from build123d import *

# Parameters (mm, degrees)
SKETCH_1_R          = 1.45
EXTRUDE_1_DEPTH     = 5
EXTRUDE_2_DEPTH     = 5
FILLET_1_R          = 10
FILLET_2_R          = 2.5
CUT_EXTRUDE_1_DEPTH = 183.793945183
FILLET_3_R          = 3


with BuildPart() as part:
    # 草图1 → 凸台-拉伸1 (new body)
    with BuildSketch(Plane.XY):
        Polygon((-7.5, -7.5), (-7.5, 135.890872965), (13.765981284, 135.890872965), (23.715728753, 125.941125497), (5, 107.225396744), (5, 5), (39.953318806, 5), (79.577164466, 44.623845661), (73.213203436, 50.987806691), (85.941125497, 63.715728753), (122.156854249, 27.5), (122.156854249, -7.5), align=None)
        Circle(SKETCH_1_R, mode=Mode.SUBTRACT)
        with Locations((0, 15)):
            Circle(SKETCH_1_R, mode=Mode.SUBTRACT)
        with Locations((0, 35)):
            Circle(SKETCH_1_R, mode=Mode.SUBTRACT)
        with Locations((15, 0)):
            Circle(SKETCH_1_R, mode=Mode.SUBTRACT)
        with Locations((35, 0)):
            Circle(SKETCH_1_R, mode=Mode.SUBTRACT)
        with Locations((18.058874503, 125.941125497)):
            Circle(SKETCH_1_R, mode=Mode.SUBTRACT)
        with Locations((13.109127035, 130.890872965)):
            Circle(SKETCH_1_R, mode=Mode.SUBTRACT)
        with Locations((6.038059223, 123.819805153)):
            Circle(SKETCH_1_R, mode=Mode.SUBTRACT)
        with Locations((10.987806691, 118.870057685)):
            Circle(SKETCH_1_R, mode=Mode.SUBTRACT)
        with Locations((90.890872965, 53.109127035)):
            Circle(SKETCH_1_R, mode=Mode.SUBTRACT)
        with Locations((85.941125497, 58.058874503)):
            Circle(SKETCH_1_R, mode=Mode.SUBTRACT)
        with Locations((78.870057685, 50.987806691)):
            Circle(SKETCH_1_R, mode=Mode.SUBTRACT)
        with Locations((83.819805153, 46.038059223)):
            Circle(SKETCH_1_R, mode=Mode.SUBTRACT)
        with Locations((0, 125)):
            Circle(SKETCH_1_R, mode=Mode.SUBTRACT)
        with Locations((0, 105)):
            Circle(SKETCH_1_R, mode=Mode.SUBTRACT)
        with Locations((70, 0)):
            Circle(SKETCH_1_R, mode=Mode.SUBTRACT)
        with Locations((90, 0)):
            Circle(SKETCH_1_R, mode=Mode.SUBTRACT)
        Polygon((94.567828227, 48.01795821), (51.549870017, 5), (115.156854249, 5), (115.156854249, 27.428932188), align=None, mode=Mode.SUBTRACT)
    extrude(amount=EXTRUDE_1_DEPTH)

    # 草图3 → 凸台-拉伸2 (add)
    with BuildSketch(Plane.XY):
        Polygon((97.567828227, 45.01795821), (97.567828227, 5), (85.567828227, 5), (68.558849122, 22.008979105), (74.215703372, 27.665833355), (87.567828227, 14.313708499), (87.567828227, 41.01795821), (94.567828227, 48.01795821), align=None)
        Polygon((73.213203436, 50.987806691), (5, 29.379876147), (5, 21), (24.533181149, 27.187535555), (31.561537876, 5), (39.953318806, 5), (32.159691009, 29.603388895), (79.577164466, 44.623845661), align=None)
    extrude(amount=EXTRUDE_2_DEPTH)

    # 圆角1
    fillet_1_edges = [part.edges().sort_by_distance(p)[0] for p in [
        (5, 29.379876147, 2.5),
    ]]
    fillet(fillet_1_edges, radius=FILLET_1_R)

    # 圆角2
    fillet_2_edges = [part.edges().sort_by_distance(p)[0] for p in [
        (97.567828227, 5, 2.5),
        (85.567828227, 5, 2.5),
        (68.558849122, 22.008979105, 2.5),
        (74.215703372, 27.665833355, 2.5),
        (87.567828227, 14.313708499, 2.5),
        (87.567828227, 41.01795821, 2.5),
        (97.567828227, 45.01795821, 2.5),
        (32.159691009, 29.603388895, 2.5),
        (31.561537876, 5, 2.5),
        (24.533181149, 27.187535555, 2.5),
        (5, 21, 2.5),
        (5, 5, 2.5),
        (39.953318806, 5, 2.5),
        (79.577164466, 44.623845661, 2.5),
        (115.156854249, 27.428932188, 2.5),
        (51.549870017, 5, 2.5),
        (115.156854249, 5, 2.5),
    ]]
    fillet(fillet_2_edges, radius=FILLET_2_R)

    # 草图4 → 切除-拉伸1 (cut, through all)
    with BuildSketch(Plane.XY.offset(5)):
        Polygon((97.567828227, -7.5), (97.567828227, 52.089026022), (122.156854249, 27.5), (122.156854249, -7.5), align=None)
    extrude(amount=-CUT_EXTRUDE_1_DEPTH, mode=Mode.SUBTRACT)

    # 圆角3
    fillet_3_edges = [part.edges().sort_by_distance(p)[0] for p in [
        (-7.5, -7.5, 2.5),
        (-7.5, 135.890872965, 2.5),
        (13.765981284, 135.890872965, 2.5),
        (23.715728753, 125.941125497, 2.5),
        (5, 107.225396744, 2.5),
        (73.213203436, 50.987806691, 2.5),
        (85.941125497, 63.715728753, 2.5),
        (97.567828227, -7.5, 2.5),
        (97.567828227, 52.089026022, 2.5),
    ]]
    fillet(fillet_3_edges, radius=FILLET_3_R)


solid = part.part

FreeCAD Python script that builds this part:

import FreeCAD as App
import Part
import Sketcher
Q = App.Units.Quantity


def edges_at(feature, points):
    """Names of the edges that pass closest to the given points."""
    edges = feature.Shape.Edges
    near = lambda p: min(range(len(edges)), key=lambda i: edges[i].distToShape(Part.Vertex(*p))[0])
    return sorted({f"Edge{near(p) + 1}" for p in points})

doc = App.newDocument("Part")
params = doc.addObject("Spreadsheet::Sheet", "Params")
for row, (alias, value) in enumerate([
    ("sketch1_diameter", "2.9 mm"),
    ("sketch1_height", "35 mm"),
    ("sketch1_length", "18 mm"),
    ("sketch1_length2", "9 mm"),
    ("pad1_length", "5 mm"),
    ("sketch2_width", "12 mm"),
    ("sketch2_length", "8 mm"),
    ("sketch2_length2", "9 mm"),
    ("pad2_length", "5 mm"),
    ("fillet_radius", "10 mm"),
    ("fillet2_radius", "2.5 mm"),
    ("sketch3_height", "35 mm"),
    ("fillet3_radius", "3 mm"),
], start=1):
    params.set(f"A{row}", alias)
    params.set(f"B{row}", "=" + value)
    params.setAlias(f"B{row}", alias)

body = doc.addObject("PartDesign::Body", "Body")

# Sketch on XY plane
sketch1 = doc.addObject("Sketcher::SketchObject", "Sketch")
body.addObject(sketch1)
sketch1.AttachmentSupport = (doc.XY_Plane, [""])
sketch1.MapMode = "FlatFace"
sketch1.addGeometry([
    Part.LineSegment(App.Vector(-7.5, 135.890873, 0), App.Vector(-7.5, -7.5, 0)),  # 0
    Part.LineSegment(App.Vector(-7.5, -7.5, 0), App.Vector(122.156854, -7.5, 0)),  # 1
    Part.LineSegment(App.Vector(122.156854, -7.5, 0), App.Vector(122.156854, 27.5, 0)),  # 2
    Part.LineSegment(App.Vector(122.156854, 27.5, 0), App.Vector(85.941125, 63.715729, 0)),  # 3
    Part.LineSegment(App.Vector(85.941125, 63.715729, 0), App.Vector(73.213203, 50.987807, 0)),  # 4
    Part.LineSegment(App.Vector(73.213203, 50.987807, 0), App.Vector(79.577164, 44.623846, 0)),  # 5
    Part.LineSegment(App.Vector(79.577164, 44.623846, 0), App.Vector(39.953319, 5, 0)),  # 6
    Part.LineSegment(App.Vector(39.953319, 5, 0), App.Vector(5, 5, 0)),  # 7
    Part.LineSegment(App.Vector(5, 5, 0), App.Vector(5, 107.225397, 0)),  # 8
    Part.LineSegment(App.Vector(5, 107.225397, 0), App.Vector(23.715729, 125.941125, 0)),  # 9
    Part.LineSegment(App.Vector(23.715729, 125.941125, 0), App.Vector(13.765981, 135.890873, 0)),  # 10
    Part.LineSegment(App.Vector(13.765981, 135.890873, 0), App.Vector(-7.5, 135.890873, 0)),  # 11
    Part.Circle(App.Vector(90, 0, 0), App.Vector(0, 0, 1), 1.45),  # 12
    Part.Circle(App.Vector(70, 0, 0), App.Vector(0, 0, 1), 1.45),  # 13
    Part.LineSegment(App.Vector(94.567828, 48.017958, 0), App.Vector(115.156854, 27.428932, 0)),  # 14
    Part.LineSegment(App.Vector(115.156854, 27.428932, 0), App.Vector(115.156854, 5, 0)),  # 15
    Part.LineSegment(App.Vector(115.156854, 5, 0), App.Vector(51.54987, 5, 0)),  # 16
    Part.LineSegment(App.Vector(51.54987, 5, 0), App.Vector(94.567828, 48.017958, 0)),  # 17
    Part.Circle(App.Vector(90.890873, 53.109127, 0), App.Vector(0, 0, 1), 1.45),  # 18
    Part.Circle(App.Vector(83.819805, 46.038059, 0), App.Vector(0, 0, 1), 1.45),  # 19
    Part.Circle(App.Vector(78.870058, 50.987807, 0), App.Vector(0, 0, 1), 1.45),  # 20
    Part.Circle(App.Vector(85.941125, 58.058875, 0), App.Vector(0, 0, 1), 1.45),  # 21
    Part.Circle(App.Vector(35, 0, 0), App.Vector(0, 0, 1), 1.45),  # 22
    Part.Circle(App.Vector(15, 0, 0), App.Vector(0, 0, 1), 1.45),  # 23
    Part.Circle(App.Vector(0, 0, 0), App.Vector(0, 0, 1), 1.45),  # 24
    Part.Circle(App.Vector(0, 15, 0), App.Vector(0, 0, 1), 1.45),  # 25
    Part.Circle(App.Vector(0, 35, 0), App.Vector(0, 0, 1), 1.45),  # 26
    Part.Circle(App.Vector(0, 105, 0), App.Vector(0, 0, 1), 1.45),  # 27
    Part.Circle(App.Vector(18.058875, 125.941125, 0), App.Vector(0, 0, 1), 1.45),  # 28
    Part.Circle(App.Vector(10.987807, 118.870058, 0), App.Vector(0, 0, 1), 1.45),  # 29
    Part.Circle(App.Vector(6.038059, 123.819805, 0), App.Vector(0, 0, 1), 1.45),  # 30
    Part.Circle(App.Vector(13.109127, 130.890873, 0), App.Vector(0, 0, 1), 1.45),  # 31
    Part.Circle(App.Vector(0, 125, 0), App.Vector(0, 0, 1), 1.45),  # 32
], False)
sketch1.addConstraint([
    Sketcher.Constraint("Coincident", 0, 2, 1, 1),
    Sketcher.Constraint("Coincident", 1, 2, 2, 1),
    Sketcher.Constraint("Coincident", 2, 2, 3, 1),
    Sketcher.Constraint("Coincident", 3, 2, 4, 1),
    Sketcher.Constraint("Coincident", 4, 2, 5, 1),
    Sketcher.Constraint("Coincident", 5, 2, 6, 1),
    Sketcher.Constraint("Coincident", 6, 2, 7, 1),
    Sketcher.Constraint("Coincident", 7, 2, 8, 1),
    Sketcher.Constraint("Coincident", 8, 2, 9, 1),
    Sketcher.Constraint("Coincident", 9, 2, 10, 1),
    Sketcher.Constraint("Coincident", 10, 2, 11, 1),
    Sketcher.Constraint("Coincident", 11, 2, 0, 1),
    Sketcher.Constraint("Coincident", 14, 2, 15, 1),
    Sketcher.Constraint("Coincident", 15, 2, 16, 1),
    Sketcher.Constraint("Coincident", 16, 2, 17, 1),
    Sketcher.Constraint("Coincident", 17, 2, 14, 1),
    Sketcher.Constraint("Vertical", 0),
    Sketcher.Constraint("Horizontal", 1),
    Sketcher.Constraint("Vertical", 2),
    Sketcher.Constraint("Horizontal", 7),
    Sketcher.Constraint("Vertical", 8),
    Sketcher.Constraint("Horizontal", 11),
    Sketcher.Constraint("Vertical", 15),
    Sketcher.Constraint("Horizontal", 16),
    Sketcher.Constraint("Coincident", 24, 3, -1, 1),
    Sketcher.Constraint("Equal", 12, 13),
    Sketcher.Constraint("Equal", 13, 18),
    Sketcher.Constraint("Equal", 18, 19),
    Sketcher.Constraint("Equal", 19, 20),
    Sketcher.Constraint("Equal", 20, 21),
    Sketcher.Constraint("Equal", 21, 22),
    Sketcher.Constraint("Equal", 22, 23),
    Sketcher.Constraint("Equal", 23, 24),
    Sketcher.Constraint("Equal", 24, 25),
    Sketcher.Constraint("Equal", 25, 26),
    Sketcher.Constraint("Equal", 26, 27),
    Sketcher.Constraint("Equal", 27, 28),
    Sketcher.Constraint("Equal", 28, 29),
    Sketcher.Constraint("Equal", 29, 30),
    Sketcher.Constraint("Equal", 30, 31),
    Sketcher.Constraint("Equal", 31, 32),
    Sketcher.Constraint("PointOnObject", 12, 3, -1),
    Sketcher.Constraint("PointOnObject", 13, 3, -1),
    Sketcher.Constraint("PointOnObject", 22, 3, -1),
    Sketcher.Constraint("PointOnObject", 23, 3, -1),
    Sketcher.Constraint("PointOnObject", 25, 3, -2),
    Sketcher.Constraint("PointOnObject", 26, 3, -2),
    Sketcher.Constraint("PointOnObject", 27, 3, -2),
    Sketcher.Constraint("PointOnObject", 32, 3, -2),
    Sketcher.Constraint("Perpendicular", 3, 4),
    Sketcher.Constraint("Perpendicular", 4, 5),
    Sketcher.Constraint("Perpendicular", 5, 6),
    Sketcher.Constraint("Parallel", 6, 9),
    Sketcher.Constraint("Perpendicular", 9, 10),
    Sketcher.Constraint("Parallel", 10, 14),
    Sketcher.Constraint("Perpendicular", 14, 17),
    Sketcher.Constraint("Horizontal", 20, 3, 4, 2),
    Sketcher.Constraint("Horizontal", 28, 3, 9, 2),
    Sketcher.Constraint("Horizontal", 7, 2, 15, 2),
    Sketcher.Constraint("Vertical", 21, 3, 3, 2),
    Sketcher.Constraint("Diameter", 12, 2.9),
    Sketcher.Constraint("DistanceY", 2, 1, 2, 2, 35.0),
    Sketcher.Constraint("Angle", 3, Q("135 deg")),
    Sketcher.Constraint("Distance", 4, 18.0),
    Sketcher.Constraint("Distance", 5, 9.0),
    Sketcher.Constraint("DistanceX", -1, 1, 12, 3, 90.0),
    Sketcher.Constraint("DistanceX", -1, 1, 13, 3, 70.0),
    Sketcher.Constraint("DistanceX", -1, 1, 22, 3, 35.0),
    Sketcher.Constraint("DistanceX", -1, 1, 23, 3, 15.0),
    Sketcher.Constraint("DistanceY", -1, 1, 25, 3, 15.0),
    Sketcher.Constraint("DistanceY", -1, 1, 26, 3, 35.0),
    Sketcher.Constraint("DistanceY", -1, 1, 27, 3, 105.0),
    Sketcher.Constraint("DistanceY", -1, 1, 32, 3, 125.0),
    Sketcher.Constraint("DistanceY", -1, 1, 6, 2, 5.0),
    Sketcher.Constraint("DistanceX", -1, 1, 7, 2, 5.0),
    Sketcher.Constraint("DistanceY", 31, 3, 10, 2, 5.0),
    Sketcher.Constraint("DistanceX", 14, 2, 2, 2, 7.0),
    Sketcher.Constraint("DistanceX", 0, 2, -1, 1, 7.5),
    Sketcher.Constraint("DistanceY", 0, 2, -1, 1, 7.5),
    Sketcher.Constraint("DistanceX", 28, 3, 18, 3, 72.831998),
    Sketcher.Constraint("DistanceY", 18, 3, 28, 3, 72.831998),
    Sketcher.Constraint("DistanceX", 30, 3, 20, 3, 72.831998),
    Sketcher.Constraint("DistanceY", 20, 3, 30, 3, 72.831998),
    Sketcher.Constraint("DistanceX", 7, 2, 7, 1, 34.953319),
    Sketcher.Constraint("DistanceX", 11, 2, 11, 1, 21.265981),
    Sketcher.Constraint("DistanceY", 18, 3, 3, 2, 10.606602),
    Sketcher.Constraint("DistanceX", 4, 2, 19, 3, 10.606602),
    Sketcher.Constraint("DistanceX", 31, 3, 9, 2, 10.606602),
    Sketcher.Constraint("DistanceY", 19, 3, 17, 2, 1.979899),
    Sketcher.Constraint("Distance", 6, 56.03658),
    Sketcher.Constraint("Distance", 14, 29.11728),
    Sketcher.Constraint("Distance", 17, 60.83658),
    Sketcher.Constraint("DistanceY", 0, 2, 0, 1, 143.390873),
    Sketcher.Constraint("DistanceX", -1, 1, 30, 3, 6.038059),
    Sketcher.Constraint("DistanceX", 28, 3, 21, 3, 67.882251),
    Sketcher.Constraint("DistanceY", 21, 3, 28, 3, 67.882251),
    Sketcher.Constraint("DistanceX", 29, 3, 20, 3, 67.882251),
    Sketcher.Constraint("DistanceY", 20, 3, 29, 3, 67.882251),
])
sketch1.setExpression("Constraints[60]", "Params.sketch1_diameter")
sketch1.setExpression("Constraints[61]", "Params.sketch1_height")
sketch1.setExpression("Constraints[63]", "Params.sketch1_length")
sketch1.setExpression("Constraints[64]", "Params.sketch1_length2")
pad1 = doc.addObject("PartDesign::Pad", "Pad")
body.addObject(pad1)
pad1.Profile = sketch1
pad1.setExpression("Length", "Params.pad1_length")

# Sketch on XY plane
sketch2 = doc.addObject("Sketcher::SketchObject", "Sketch001")
body.addObject(sketch2)
sketch2.AttachmentSupport = (doc.XY_Plane, [""])
sketch2.MapMode = "FlatFace"
sketch2.addGeometry([
    Part.LineSegment(App.Vector(97.567828, 5, 0), App.Vector(97.567828, 45.017958, 0)),  # 0
    Part.LineSegment(App.Vector(97.567828, 45.017958, 0), App.Vector(94.567828, 48.017958, 0)),  # 1
    Part.LineSegment(App.Vector(94.567828, 48.017958, 0), App.Vector(87.567828, 41.017958, 0)),  # 2
    Part.LineSegment(App.Vector(87.567828, 41.017958, 0), App.Vector(87.567828, 14.313708, 0)),  # 3
    Part.LineSegment(App.Vector(87.567828, 14.313708, 0), App.Vector(74.215703, 27.665833, 0)),  # 4
    Part.LineSegment(App.Vector(74.215703, 27.665833, 0), App.Vector(68.558849, 22.008979, 0)),  # 5
    Part.LineSegment(App.Vector(68.558849, 22.008979, 0), App.Vector(85.567828, 5, 0)),  # 6
    Part.LineSegment(App.Vector(85.567828, 5, 0), App.Vector(97.567828, 5, 0)),  # 7
    Part.LineSegment(App.Vector(73.213203, 50.987807, 0), App.Vector(5, 29.379876, 0)),  # 8
    Part.LineSegment(App.Vector(5, 29.379876, 0), App.Vector(5, 21, 0)),  # 9
    Part.LineSegment(App.Vector(5, 21, 0), App.Vector(24.533181, 27.187536, 0)),  # 10
    Part.LineSegment(App.Vector(24.533181, 27.187536, 0), App.Vector(31.561538, 5, 0)),  # 11
    Part.LineSegment(App.Vector(31.561538, 5, 0), App.Vector(39.953319, 5, 0)),  # 12
    Part.LineSegment(App.Vector(39.953319, 5, 0), App.Vector(32.159691, 29.603389, 0)),  # 13
    Part.LineSegment(App.Vector(32.159691, 29.603389, 0), App.Vector(79.577164, 44.623846, 0)),  # 14
    Part.LineSegment(App.Vector(79.577164, 44.623846, 0), App.Vector(73.213203, 50.987807, 0)),  # 15
], False)
sketch2.addConstraint([
    Sketcher.Constraint("Coincident", 0, 2, 1, 1),
    Sketcher.Constraint("Coincident", 1, 2, 2, 1),
    Sketcher.Constraint("Coincident", 2, 2, 3, 1),
    Sketcher.Constraint("Coincident", 3, 2, 4, 1),
    Sketcher.Constraint("Coincident", 4, 2, 5, 1),
    Sketcher.Constraint("Coincident", 5, 2, 6, 1),
    Sketcher.Constraint("Coincident", 6, 2, 7, 1),
    Sketcher.Constraint("Coincident", 7, 2, 0, 1),
    Sketcher.Constraint("Coincident", 8, 2, 9, 1),
    Sketcher.Constraint("Coincident", 9, 2, 10, 1),
    Sketcher.Constraint("Coincident", 10, 2, 11, 1),
    Sketcher.Constraint("Coincident", 11, 2, 12, 1),
    Sketcher.Constraint("Coincident", 12, 2, 13, 1),
    Sketcher.Constraint("Coincident", 13, 2, 14, 1),
    Sketcher.Constraint("Coincident", 14, 2, 15, 1),
    Sketcher.Constraint("Coincident", 15, 2, 8, 1),
    Sketcher.Constraint("Vertical", 0),
    Sketcher.Constraint("Vertical", 3),
    Sketcher.Constraint("Horizontal", 7),
    Sketcher.Constraint("Vertical", 9),
    Sketcher.Constraint("Horizontal", 12),
    Sketcher.Constraint("Perpendicular", 1, 2),
    Sketcher.Constraint("Perpendicular", 2, 4),
    Sketcher.Constraint("Perpendicular", 4, 5),
    Sketcher.Constraint("Perpendicular", 5, 6),
    Sketcher.Constraint("Parallel", 8, 10),
    Sketcher.Constraint("Perpendicular", 10, 11),
    Sketcher.Constraint("Parallel", 11, 13),
    Sketcher.Constraint("Perpendicular", 13, 14),
    Sketcher.Constraint("Parallel", 6, 15),
    Sketcher.Constraint("Horizontal", 7, 2, 11, 2),
    Sketcher.Constraint("DistanceX", 7, 1, 7, 2, 12.0),
    Sketcher.Constraint("Angle", 1, Q("135 deg")),
    Sketcher.Constraint("Distance", 5, 8.0),
    Sketcher.Constraint("Distance", 15, 9.0),
    Sketcher.Constraint("DistanceY", -1, 1, 6, 2, 5.0),
    Sketcher.Constraint("DistanceX", -1, 1, 8, 2, 5.0),
    Sketcher.Constraint("DistanceY", -1, 1, 9, 2, 21.0),
    Sketcher.Constraint("DistanceX", 1, 2, 0, 2, 3.0),
    Sketcher.Constraint("DistanceX", 2, 2, 1, 2, 7.0),
    Sketcher.Constraint("DistanceX", 12, 1, 12, 2, 8.391781),
    Sketcher.Constraint("DistanceY", 0, 1, 0, 2, 40.017958),
    Sketcher.Constraint("DistanceX", 15, 2, 4, 2, 1.0025),
    Sketcher.Constraint("Distance", 6, 24.054329),
    Sketcher.Constraint("Distance", 13, 25.808281),
    Sketcher.Constraint("Distance", 14, 49.739631),
    Sketcher.Constraint("DistanceY", 9, 2, 9, 1, 8.379876),
    Sketcher.Constraint("DistanceX", -1, 1, 0, 2, 97.567828),
])
sketch2.setExpression("Constraints[31]", "Params.sketch2_width")
sketch2.setExpression("Constraints[33]", "Params.sketch2_length")
sketch2.setExpression("Constraints[34]", "Params.sketch2_length2")
pad2 = doc.addObject("PartDesign::Pad", "Pad001")
body.addObject(pad2)
pad2.Profile = sketch2
pad2.setExpression("Length", "Params.pad2_length")
doc.recompute()

fillet = doc.addObject("PartDesign::Fillet", "Fillet")
body.addObject(fillet)
fillet.Base = (pad2, edges_at(pad2, [(5, 29.38, 2.5)]))
fillet.setExpression("Radius", "Params.fillet_radius")
doc.recompute()

fillet2 = doc.addObject("PartDesign::Fillet", "Fillet001")
body.addObject(fillet2)
fillet2.Base = (fillet, edges_at(fillet, [
    (97.568, 5, 2.5),
    (85.568, 5, 2.5),
    (68.559, 22.009, 2.5),
    (74.216, 27.666, 2.5),
    (87.568, 14.314, 2.5),
    (87.568, 41.018, 2.5),
    (97.568, 45.018, 2.5),
    (32.16, 29.603, 2.5),
    (31.562, 5, 2.5),
    (24.533, 27.188, 2.5),
    (5, 21, 2.5),
    (5, 5, 2.5),
    (39.953, 5, 2.5),
    (79.577, 44.624, 2.5),
    (115.157, 27.429, 2.5),
    (51.55, 5, 2.5),
    (115.157, 5, 2.5),
]))
fillet2.setExpression("Radius", "Params.fillet2_radius")

# Sketch on XY plane
sketch3 = doc.addObject("Sketcher::SketchObject", "Sketch002")
body.addObject(sketch3)
sketch3.AttachmentSupport = (doc.XY_Plane, [""])
sketch3.MapMode = "FlatFace"
sketch3.AttachmentOffset = App.Placement(App.Vector(0, 0, 5), App.Rotation())
sketch3.addGeometry([
    Part.LineSegment(App.Vector(97.567828, 52.089026, 0), App.Vector(97.567828, -7.5, 0)),
    Part.LineSegment(App.Vector(97.567828, -7.5, 0), App.Vector(122.156854, -7.5, 0)),
    Part.LineSegment(App.Vector(122.156854, -7.5, 0), App.Vector(122.156854, 27.5, 0)),
    Part.LineSegment(App.Vector(122.156854, 27.5, 0), App.Vector(97.567828, 52.089026, 0)),
], False)
sketch3.addConstraint([
    Sketcher.Constraint("Coincident", 0, 2, 1, 1),
    Sketcher.Constraint("Coincident", 1, 2, 2, 1),
    Sketcher.Constraint("Coincident", 2, 2, 3, 1),
    Sketcher.Constraint("Coincident", 3, 2, 0, 1),
    Sketcher.Constraint("Vertical", 0),
    Sketcher.Constraint("Horizontal", 1),
    Sketcher.Constraint("Vertical", 2),
    Sketcher.Constraint("DistanceY", 2, 1, 2, 2, 35.0),
    Sketcher.Constraint("Angle", 3, Q("135 deg")),
    Sketcher.Constraint("DistanceY", 0, 2, -1, 1, 7.5),
    Sketcher.Constraint("DistanceX", 1, 1, 1, 2, 24.589026),
    Sketcher.Constraint("DistanceX", -1, 1, 0, 2, 97.567828),
])
sketch3.setExpression("Constraints[7]", "Params.sketch3_height")
pocket1 = doc.addObject("PartDesign::Pocket", "Pocket")
body.addObject(pocket1)
pocket1.Profile = sketch3
pocket1.Type = "ThroughAll"
doc.recompute()

fillet3 = doc.addObject("PartDesign::Fillet", "Fillet002")
body.addObject(fillet3)
fillet3.Base = (pocket1, edges_at(pocket1, [
    (-7.5, -7.5, 2.5),
    (-7.5, 135.891, 2.5),
    (13.766, 135.891, 2.5),
    (23.716, 125.941, 2.5),
    (5, 107.225, 2.5),
    (73.213, 50.988, 2.5),
    (85.941, 63.716, 2.5),
    (97.568, -7.5, 2.5),
    (97.568, 52.089, 2.5),
]))
fillet3.setExpression("Radius", "Params.fillet3_radius")

doc.recompute()
